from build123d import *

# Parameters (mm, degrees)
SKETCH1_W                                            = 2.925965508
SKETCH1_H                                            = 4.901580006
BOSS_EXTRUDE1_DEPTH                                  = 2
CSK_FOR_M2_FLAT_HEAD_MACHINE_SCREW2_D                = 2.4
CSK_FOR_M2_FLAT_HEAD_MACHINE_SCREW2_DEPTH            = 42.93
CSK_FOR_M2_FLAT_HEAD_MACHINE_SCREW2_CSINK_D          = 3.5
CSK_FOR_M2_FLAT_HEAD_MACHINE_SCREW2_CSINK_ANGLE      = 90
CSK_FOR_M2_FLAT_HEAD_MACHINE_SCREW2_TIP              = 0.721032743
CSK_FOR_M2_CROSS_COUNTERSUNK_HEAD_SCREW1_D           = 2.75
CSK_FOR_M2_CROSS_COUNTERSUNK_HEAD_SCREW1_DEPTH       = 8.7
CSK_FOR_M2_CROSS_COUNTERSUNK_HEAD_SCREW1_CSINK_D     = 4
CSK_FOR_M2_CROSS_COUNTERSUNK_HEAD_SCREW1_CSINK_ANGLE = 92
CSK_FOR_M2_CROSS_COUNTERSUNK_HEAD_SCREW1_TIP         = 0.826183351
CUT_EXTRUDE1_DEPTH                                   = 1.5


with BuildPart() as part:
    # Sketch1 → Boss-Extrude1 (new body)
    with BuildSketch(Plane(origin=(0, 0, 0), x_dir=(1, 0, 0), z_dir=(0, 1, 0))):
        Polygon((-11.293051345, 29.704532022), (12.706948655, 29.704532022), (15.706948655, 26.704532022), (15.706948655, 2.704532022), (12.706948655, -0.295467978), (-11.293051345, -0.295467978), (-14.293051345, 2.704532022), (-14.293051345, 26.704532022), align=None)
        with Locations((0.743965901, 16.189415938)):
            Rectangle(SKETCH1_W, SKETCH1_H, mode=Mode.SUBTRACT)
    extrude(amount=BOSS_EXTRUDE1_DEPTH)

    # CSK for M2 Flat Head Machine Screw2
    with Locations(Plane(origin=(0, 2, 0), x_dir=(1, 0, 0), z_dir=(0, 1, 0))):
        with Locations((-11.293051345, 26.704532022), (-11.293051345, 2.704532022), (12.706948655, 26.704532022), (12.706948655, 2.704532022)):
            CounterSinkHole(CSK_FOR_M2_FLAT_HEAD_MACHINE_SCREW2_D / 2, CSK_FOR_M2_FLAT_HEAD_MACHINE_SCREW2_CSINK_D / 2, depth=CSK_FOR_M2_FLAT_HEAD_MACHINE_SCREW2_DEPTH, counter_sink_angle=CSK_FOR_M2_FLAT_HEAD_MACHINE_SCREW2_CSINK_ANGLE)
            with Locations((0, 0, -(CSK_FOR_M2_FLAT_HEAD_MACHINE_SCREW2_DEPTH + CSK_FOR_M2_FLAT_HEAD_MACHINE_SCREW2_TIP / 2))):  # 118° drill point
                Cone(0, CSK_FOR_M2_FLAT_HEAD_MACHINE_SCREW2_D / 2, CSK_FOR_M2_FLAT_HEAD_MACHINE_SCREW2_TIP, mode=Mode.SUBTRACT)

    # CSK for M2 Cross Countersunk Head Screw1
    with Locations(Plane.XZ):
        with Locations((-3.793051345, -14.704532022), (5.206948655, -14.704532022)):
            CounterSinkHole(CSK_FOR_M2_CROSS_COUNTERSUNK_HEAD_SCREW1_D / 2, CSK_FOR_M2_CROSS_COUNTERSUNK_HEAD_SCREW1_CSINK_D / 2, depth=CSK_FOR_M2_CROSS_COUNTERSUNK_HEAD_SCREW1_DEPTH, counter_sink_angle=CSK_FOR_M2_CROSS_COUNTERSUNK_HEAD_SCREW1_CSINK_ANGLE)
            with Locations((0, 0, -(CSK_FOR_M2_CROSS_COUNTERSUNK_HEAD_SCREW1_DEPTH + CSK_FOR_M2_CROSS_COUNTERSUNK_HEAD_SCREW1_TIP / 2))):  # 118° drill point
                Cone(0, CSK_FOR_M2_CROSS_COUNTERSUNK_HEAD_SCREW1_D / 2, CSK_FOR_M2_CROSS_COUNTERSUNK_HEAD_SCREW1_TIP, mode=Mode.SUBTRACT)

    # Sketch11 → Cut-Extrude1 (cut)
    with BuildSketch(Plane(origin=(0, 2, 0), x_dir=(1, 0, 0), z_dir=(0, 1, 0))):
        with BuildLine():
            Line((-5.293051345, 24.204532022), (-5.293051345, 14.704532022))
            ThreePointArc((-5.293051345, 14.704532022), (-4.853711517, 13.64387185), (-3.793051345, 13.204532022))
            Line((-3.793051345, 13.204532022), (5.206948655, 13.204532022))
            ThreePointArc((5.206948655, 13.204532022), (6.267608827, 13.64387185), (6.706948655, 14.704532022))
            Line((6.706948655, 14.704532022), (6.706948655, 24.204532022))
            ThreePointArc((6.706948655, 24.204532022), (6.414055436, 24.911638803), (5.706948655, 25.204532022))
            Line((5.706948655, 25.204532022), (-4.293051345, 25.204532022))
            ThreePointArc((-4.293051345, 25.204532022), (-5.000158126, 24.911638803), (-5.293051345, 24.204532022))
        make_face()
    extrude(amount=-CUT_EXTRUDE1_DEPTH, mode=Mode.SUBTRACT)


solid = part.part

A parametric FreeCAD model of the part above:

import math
import FreeCAD as App
import Part
import Sketcher
Q = App.Units.Quantity

doc = App.newDocument("Part")
body = doc.addObject("PartDesign::Body", "Body")

sketch1 = body.newObject("Sketcher::SketchObject", "Sketch")
sketch1.AttachmentSupport = (doc.getObject("XZ_Plane"), [""])
sketch1.MapMode = "FlatFace"
sketch1.addGeometry([
    Part.LineSegment(App.Vector(12.7, -29.7, 0), App.Vector(-11.3, -29.7, 0)),
    Part.LineSegment(App.Vector(-11.3, -29.7, 0), App.Vector(-14.3, -26.7, 0)),
    Part.LineSegment(App.Vector(-14.3, -26.7, 0), App.Vector(-14.3, -2.7, 0)),
    Part.LineSegment(App.Vector(-14.3, -2.7, 0), App.Vector(-11.3, 0.3, 0)),
    Part.LineSegment(App.Vector(-11.3, 0.3, 0), App.Vector(12.7, 0.3, 0)),
    Part.LineSegment(App.Vector(12.7, 0.3, 0), App.Vector(15.7, -2.7, 0)),
    Part.LineSegment(App.Vector(15.7, -2.7, 0), App.Vector(15.7, -26.7, 0)),
    Part.LineSegment(App.Vector(15.7, -26.7, 0), App.Vector(12.7, -29.7, 0)),
    Part.LineSegment(App.Vector(-0.7, -13.7, 0), App.Vector(-0.7, -18.6, 0)),
    Part.LineSegment(App.Vector(-0.7, -18.6, 0), App.Vector(2.2, -18.6, 0)),
    Part.LineSegment(App.Vector(2.2, -18.6, 0), App.Vector(2.2, -13.7, 0)),
    Part.LineSegment(App.Vector(2.2, -13.7, 0), App.Vector(-0.7, -13.7, 0)),
], False)
sketch1.addConstraint([
    Sketcher.Constraint("Coincident", 0, 2, 1, 1),
    Sketcher.Constraint("Coincident", 1, 2, 2, 1),
    Sketcher.Constraint("Coincident", 2, 2, 3, 1),
    Sketcher.Constraint("Coincident", 3, 2, 4, 1),
    Sketcher.Constraint("Coincident", 4, 2, 5, 1),
    Sketcher.Constraint("Coincident", 5, 2, 6, 1),
    Sketcher.Constraint("Coincident", 6, 2, 7, 1),
    Sketcher.Constraint("Coincident", 7, 2, 0, 1),
    Sketcher.Constraint("Coincident", 8, 2, 9, 1),
    Sketcher.Constraint("Coincident", 9, 2, 10, 1),
    Sketcher.Constraint("Coincident", 10, 2, 11, 1),
    Sketcher.Constraint("Coincident", 11, 2, 8, 1),
    Sketcher.Constraint("Horizontal", 0),
    Sketcher.Constraint("Vertical", 2),
    Sketcher.Constraint("Horizontal", 4),
    Sketcher.Constraint("Vertical", 6),
    Sketcher.Constraint("Vertical", 8),
    Sketcher.Constraint("Horizontal", 9),
    Sketcher.Constraint("Vertical", 10),
    Sketcher.Constraint("Horizontal", 11),
    Sketcher.Constraint("Perpendicular", 1, 3),
    Sketcher.Constraint("Perpendicular", 3, 5),
    Sketcher.Constraint("Perpendicular", 5, 7),
    Sketcher.Constraint("Horizontal", 2, 2, 5, 2),
    Sketcher.Constraint("Horizontal", 1, 2, 6, 2),
    Sketcher.Constraint("Vertical", 0, 2, 3, 2),
    Sketcher.Constraint("Vertical", 4, 2, 7, 2),
    Sketcher.Constraint("Equal", 4, 2),
    Sketcher.Constraint("DistanceX", 0, 2, 0, 1, Q("24 mm")),
    Sketcher.Constraint("DistanceX", 1, 2, 0, 2, Q("3 mm")),
    Sketcher.Constraint("DistanceX", 9, 2, 7, 2, Q("10.5 mm")),
    Sketcher.Constraint("DistanceY", 8, 2, 8, 1, Q("4.90158 mm")),
    Sketcher.Constraint("DistanceX", 9, 1, 9, 2, Q("2.925966 mm")),
    Sketcher.Constraint("DistanceX", 0, 2, -1, 1, Q("11.293051 mm")),
    Sketcher.Constraint("DistanceY", 0, 2, -1, 1, Q("29.704532 mm")),
    Sketcher.Constraint("DistanceY", 8, 2, -1, 1, Q("18.640206 mm")),
])
pad1 = body.newObject("PartDesign::Pad", "Pad")
pad1.Profile = sketch1
pad1.Length = 2
pad1.Reversed = True

sketch2 = body.newObject("Sketcher::SketchObject", "Sketch001")
sketch2.AttachmentSupport = (doc.getObject("XZ_Plane"), [""])
sketch2.MapMode = "FlatFace"
sketch2.AttachmentOffset = App.Placement(App.Vector(0, 0, -2), App.Rotation())
sketch2.addGeometry([
    Part.Circle(App.Vector(-11.3, -26.7, 0), App.Vector(0, 0, 1), 1.2),
    Part.Circle(App.Vector(-11.3, -2.7, 0), App.Vector(0, 0, 1), 1.2),
    Part.Circle(App.Vector(12.7, -26.7, 0), App.Vector(0, 0, 1), 1.2),
    Part.Circle(App.Vector(12.7, -2.7, 0), App.Vector(0, 0, 1), 1.2),
], False)
sketch2.addConstraint([
    Sketcher.Constraint("Equal", 0, 1),
    Sketcher.Constraint("Equal", 1, 2),
    Sketcher.Constraint("Equal", 2, 3),
    Sketcher.Constraint("Horizontal", 0, 3, 2, 3),
    Sketcher.Constraint("Horizontal", 1, 3, 3, 3),
    Sketcher.Constraint("Vertical", 0, 3, 1, 3),
    Sketcher.Constraint("Vertical", 2, 3, 3, 3),
    Sketcher.Constraint("Diameter", 0, Q("2.4 mm")),
    Sketcher.Constraint("DistanceY", 0, 3, 1, 3, Q("24 mm")),
    Sketcher.Constraint("DistanceX", 0, 3, 2, 3, Q("24 mm")),
    Sketcher.Constraint("DistanceX", 0, 3, -1, 1, Q("11.293051 mm")),
    Sketcher.Constraint("DistanceY", 0, 3, -1, 1, Q("26.704532 mm")),
])
doc.recompute()
hole = body.newObject("PartDesign::Hole", "Hole")
hole.Profile = sketch2
hole.ThreadType = "None"
hole.Diameter = 2.4
hole.DepthType = "Dimension"
hole.Depth = 42.93
hole.DrillPoint = "Angled"
hole.DrillPointAngle = 118
hole.HoleCutType = "Countersink"
hole.HoleCutDiameter = 3.5
hole.HoleCutCountersinkAngle = 90
hole.Reversed = True

sketch3 = body.newObject("Sketcher::SketchObject", "Sketch002")
sketch3.AttachmentSupport = (doc.getObject("XZ_Plane"), [""])
sketch3.MapMode = "FlatFace"
sketch3.addGeometry([
    Part.Circle(App.Vector(-3.8, -14.7, 0), App.Vector(0, 0, 1), 1.4),
    Part.Circle(App.Vector(5.2, -14.7, 0), App.Vector(0, 0, 1), 1.4),
], False)
sketch3.addConstraint([
    Sketcher.Constraint("Equal", 0, 1),
    Sketcher.Constraint("Horizontal", 0, 3, 1, 3),
    Sketcher.Constraint("Diameter", 0, Q("2.75 mm")),
    Sketcher.Constraint("DistanceX", 0, 3, 1, 3, Q("9 mm")),
    Sketcher.Constraint("DistanceX", 0, 3, -1, 1, Q("3.793051 mm")),
    Sketcher.Constraint("DistanceY", 0, 3, -1, 1, Q("14.704532 mm")),
])
doc.recompute()
hole2 = body.newObject("PartDesign::Hole", "Hole001")
hole2.Profile = sketch3
hole2.ThreadType = "None"
hole2.Diameter = 2.75
hole2.DepthType = "Dimension"
hole2.Depth = 8.7
hole2.DrillPoint = "Angled"
hole2.DrillPointAngle = 118
hole2.HoleCutType = "Countersink"
hole2.HoleCutDiameter = 4
hole2.HoleCutCountersinkAngle = 92

sketch4 = body.newObject("Sketcher::SketchObject", "Sketch003")
sketch4.AttachmentSupport = (doc.getObject("XZ_Plane"), [""])
sketch4.MapMode = "FlatFace"
sketch4.AttachmentOffset = App.Placement(App.Vector(0, 0, -2), App.Rotation())
sketch4.addGeometry([
    Part.LineSegment(App.Vector(-5.3, -24.2, 0), App.Vector(-5.3, -14.7, 0)),
    Part.ArcOfCircle(Part.Circle(App.Vector(-3.8, -14.7, 0), App.Vector(0, 0, 1), 1.5), math.radians(90), math.radians(180)),
    Part.LineSegment(App.Vector(-3.8, -13.2, 0), App.Vector(5.2, -13.2, 0)),
    Part.ArcOfCircle(Part.Circle(App.Vector(5.2, -14.7, 0), App.Vector(0, 0, 1), 1.5), math.radians(0), math.radians(90)),
    Part.LineSegment(App.Vector(6.7, -14.7, 0), App.Vector(6.7, -24.2, 0)),
    Part.ArcOfCircle(Part.Circle(App.Vector(5.7, -24.2, 0), App.Vector(0, 0, 1), 1), math.radians(-90), math.radians(0)),
    Part.LineSegment(App.Vector(5.7, -25.2, 0), App.Vector(-4.3, -25.2, 0)),
    Part.ArcOfCircle(Part.Circle(App.Vector(-4.3, -24.2, 0), App.Vector(0, 0, 1), 1), math.radians(-180), math.radians(-90)),
], False)
sketch4.addConstraint([
    Sketcher.Constraint("Tangent", 0, 2, 1, 2),
    Sketcher.Constraint("Tangent", 1, 1, 2, 1),
    Sketcher.Constraint("Tangent", 2, 2, 3, 2),
    Sketcher.Constraint("Tangent", 3, 1, 4, 1),
    Sketcher.Constraint("Tangent", 4, 2, 5, 2),
    Sketcher.Constraint("Tangent", 5, 1, 6, 1),
    Sketcher.Constraint("Tangent", 6, 2, 7, 2),
    Sketcher.Constraint("Tangent", 7, 1, 0, 1),
    Sketcher.Constraint("Vertical", 0),
    Sketcher.Constraint("Horizontal", 2),
    Sketcher.Constraint("Vertical", 4),
    Sketcher.Constraint("Horizontal", 6),
    Sketcher.Constraint("Equal", 1, 3),
    Sketcher.Constraint("Equal", 5, 7),
    Sketcher.Constraint("Radius", 5, Q("1 mm")),
    Sketcher.Constraint("Radius", 1, Q("1.5 mm")),
    Sketcher.Constraint("DistanceX", 2, 1, 2, 2, Q("9 mm")),
    Sketcher.Constraint("DistanceY", 0, 1, 0, 2, Q("9.5 mm")),
    Sketcher.Constraint("DistanceX", 1, 3, -1, 1, Q("3.793051 mm")),
    Sketcher.Constraint("DistanceY", 1, 3, -1, 1, Q("14.704532 mm")),
])
pocket1 = body.newObject("PartDesign::Pocket", "Pocket")
pocket1.Profile = sketch4
pocket1.Length = 1.5
pocket1.Reversed = True

doc.recompute()
